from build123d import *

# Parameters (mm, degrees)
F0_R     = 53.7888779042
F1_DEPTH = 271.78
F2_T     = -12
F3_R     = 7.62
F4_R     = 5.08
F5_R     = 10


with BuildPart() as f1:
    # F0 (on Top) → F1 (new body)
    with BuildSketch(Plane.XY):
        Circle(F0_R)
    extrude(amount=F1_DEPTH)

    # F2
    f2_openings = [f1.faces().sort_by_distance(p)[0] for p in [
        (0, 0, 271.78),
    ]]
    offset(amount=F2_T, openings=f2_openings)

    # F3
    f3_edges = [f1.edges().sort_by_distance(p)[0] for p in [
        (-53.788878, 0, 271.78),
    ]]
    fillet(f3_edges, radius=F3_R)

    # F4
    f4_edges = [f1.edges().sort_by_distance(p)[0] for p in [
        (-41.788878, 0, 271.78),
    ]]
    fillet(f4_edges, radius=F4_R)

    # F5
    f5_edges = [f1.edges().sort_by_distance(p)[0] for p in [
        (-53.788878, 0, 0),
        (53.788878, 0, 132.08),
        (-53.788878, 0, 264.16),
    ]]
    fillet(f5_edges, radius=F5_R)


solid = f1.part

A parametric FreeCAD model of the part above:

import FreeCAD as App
import Part
import Sketcher
Q = App.Units.Quantity


def edges_at(feature, points):
    """Names of the edges that pass closest to the given points."""
    edges = feature.Shape.Edges
    near = lambda p: min(range(len(edges)), key=lambda i: edges[i].distToShape(Part.Vertex(*p))[0])
    return sorted({f"Edge{near(p) + 1}" for p in points})


def faces_at(feature, points):
    """Names of the faces that lie closest to the given points."""
    faces = feature.Shape.Faces
    near = lambda p: min(range(len(faces)), key=lambda i: faces[i].distToShape(Part.Vertex(*p))[0])
    return sorted({f"Face{near(p) + 1}" for p in points})

doc = App.newDocument("Part")
body = doc.addObject("PartDesign::Body", "Body")

sketch1 = body.newObject("Sketcher::SketchObject", "Sketch")
sketch1.AttachmentSupport = (doc.getObject("XY_Plane"), [""])
sketch1.MapMode = "FlatFace"
sketch1.addGeometry(Part.Circle(App.Vector(0, 0, 0), App.Vector(0, 0, 1), 53.788878), False)
sketch1.addConstraint(Sketcher.Constraint("Coincident", 0, 3, -1, 1))
sketch1.addConstraint(Sketcher.Constraint("Diameter", 0, Q("107.577756 mm")))
pad1 = body.newObject("PartDesign::Pad", "Pad")
pad1.Profile = sketch1
pad1.Length = Q("10.7 in")
doc.recompute()

thickness = body.newObject("PartDesign::Thickness", "Thickness")
thickness.Base = (pad1, faces_at(pad1, [(0, 0, 271.78)]))
thickness.Value = 12
thickness.Reversed = True
thickness.Join = "Arc"
doc.recompute()

fillet = body.newObject("PartDesign::Fillet", "Fillet")
fillet.Base = (thickness, edges_at(thickness, [(-53.789, 0, 271.78)]))
fillet.Radius = Q("0.3 in")
doc.recompute()

fillet2 = body.newObject("PartDesign::Fillet", "Fillet001")
fillet2.Base = (fillet, edges_at(fillet, [(-41.789, 0, 271.78)]))
fillet2.Radius = Q("0.2 in")
doc.recompute()

fillet3 = body.newObject("PartDesign::Fillet", "Fillet002")
fillet3.Base = (fillet2, edges_at(fillet2, [(-53.789, 0, 0), (53.789, 0, 132.08), (-53.789, 0, 264.16)]))
fillet3.Radius = 10

doc.recompute()
